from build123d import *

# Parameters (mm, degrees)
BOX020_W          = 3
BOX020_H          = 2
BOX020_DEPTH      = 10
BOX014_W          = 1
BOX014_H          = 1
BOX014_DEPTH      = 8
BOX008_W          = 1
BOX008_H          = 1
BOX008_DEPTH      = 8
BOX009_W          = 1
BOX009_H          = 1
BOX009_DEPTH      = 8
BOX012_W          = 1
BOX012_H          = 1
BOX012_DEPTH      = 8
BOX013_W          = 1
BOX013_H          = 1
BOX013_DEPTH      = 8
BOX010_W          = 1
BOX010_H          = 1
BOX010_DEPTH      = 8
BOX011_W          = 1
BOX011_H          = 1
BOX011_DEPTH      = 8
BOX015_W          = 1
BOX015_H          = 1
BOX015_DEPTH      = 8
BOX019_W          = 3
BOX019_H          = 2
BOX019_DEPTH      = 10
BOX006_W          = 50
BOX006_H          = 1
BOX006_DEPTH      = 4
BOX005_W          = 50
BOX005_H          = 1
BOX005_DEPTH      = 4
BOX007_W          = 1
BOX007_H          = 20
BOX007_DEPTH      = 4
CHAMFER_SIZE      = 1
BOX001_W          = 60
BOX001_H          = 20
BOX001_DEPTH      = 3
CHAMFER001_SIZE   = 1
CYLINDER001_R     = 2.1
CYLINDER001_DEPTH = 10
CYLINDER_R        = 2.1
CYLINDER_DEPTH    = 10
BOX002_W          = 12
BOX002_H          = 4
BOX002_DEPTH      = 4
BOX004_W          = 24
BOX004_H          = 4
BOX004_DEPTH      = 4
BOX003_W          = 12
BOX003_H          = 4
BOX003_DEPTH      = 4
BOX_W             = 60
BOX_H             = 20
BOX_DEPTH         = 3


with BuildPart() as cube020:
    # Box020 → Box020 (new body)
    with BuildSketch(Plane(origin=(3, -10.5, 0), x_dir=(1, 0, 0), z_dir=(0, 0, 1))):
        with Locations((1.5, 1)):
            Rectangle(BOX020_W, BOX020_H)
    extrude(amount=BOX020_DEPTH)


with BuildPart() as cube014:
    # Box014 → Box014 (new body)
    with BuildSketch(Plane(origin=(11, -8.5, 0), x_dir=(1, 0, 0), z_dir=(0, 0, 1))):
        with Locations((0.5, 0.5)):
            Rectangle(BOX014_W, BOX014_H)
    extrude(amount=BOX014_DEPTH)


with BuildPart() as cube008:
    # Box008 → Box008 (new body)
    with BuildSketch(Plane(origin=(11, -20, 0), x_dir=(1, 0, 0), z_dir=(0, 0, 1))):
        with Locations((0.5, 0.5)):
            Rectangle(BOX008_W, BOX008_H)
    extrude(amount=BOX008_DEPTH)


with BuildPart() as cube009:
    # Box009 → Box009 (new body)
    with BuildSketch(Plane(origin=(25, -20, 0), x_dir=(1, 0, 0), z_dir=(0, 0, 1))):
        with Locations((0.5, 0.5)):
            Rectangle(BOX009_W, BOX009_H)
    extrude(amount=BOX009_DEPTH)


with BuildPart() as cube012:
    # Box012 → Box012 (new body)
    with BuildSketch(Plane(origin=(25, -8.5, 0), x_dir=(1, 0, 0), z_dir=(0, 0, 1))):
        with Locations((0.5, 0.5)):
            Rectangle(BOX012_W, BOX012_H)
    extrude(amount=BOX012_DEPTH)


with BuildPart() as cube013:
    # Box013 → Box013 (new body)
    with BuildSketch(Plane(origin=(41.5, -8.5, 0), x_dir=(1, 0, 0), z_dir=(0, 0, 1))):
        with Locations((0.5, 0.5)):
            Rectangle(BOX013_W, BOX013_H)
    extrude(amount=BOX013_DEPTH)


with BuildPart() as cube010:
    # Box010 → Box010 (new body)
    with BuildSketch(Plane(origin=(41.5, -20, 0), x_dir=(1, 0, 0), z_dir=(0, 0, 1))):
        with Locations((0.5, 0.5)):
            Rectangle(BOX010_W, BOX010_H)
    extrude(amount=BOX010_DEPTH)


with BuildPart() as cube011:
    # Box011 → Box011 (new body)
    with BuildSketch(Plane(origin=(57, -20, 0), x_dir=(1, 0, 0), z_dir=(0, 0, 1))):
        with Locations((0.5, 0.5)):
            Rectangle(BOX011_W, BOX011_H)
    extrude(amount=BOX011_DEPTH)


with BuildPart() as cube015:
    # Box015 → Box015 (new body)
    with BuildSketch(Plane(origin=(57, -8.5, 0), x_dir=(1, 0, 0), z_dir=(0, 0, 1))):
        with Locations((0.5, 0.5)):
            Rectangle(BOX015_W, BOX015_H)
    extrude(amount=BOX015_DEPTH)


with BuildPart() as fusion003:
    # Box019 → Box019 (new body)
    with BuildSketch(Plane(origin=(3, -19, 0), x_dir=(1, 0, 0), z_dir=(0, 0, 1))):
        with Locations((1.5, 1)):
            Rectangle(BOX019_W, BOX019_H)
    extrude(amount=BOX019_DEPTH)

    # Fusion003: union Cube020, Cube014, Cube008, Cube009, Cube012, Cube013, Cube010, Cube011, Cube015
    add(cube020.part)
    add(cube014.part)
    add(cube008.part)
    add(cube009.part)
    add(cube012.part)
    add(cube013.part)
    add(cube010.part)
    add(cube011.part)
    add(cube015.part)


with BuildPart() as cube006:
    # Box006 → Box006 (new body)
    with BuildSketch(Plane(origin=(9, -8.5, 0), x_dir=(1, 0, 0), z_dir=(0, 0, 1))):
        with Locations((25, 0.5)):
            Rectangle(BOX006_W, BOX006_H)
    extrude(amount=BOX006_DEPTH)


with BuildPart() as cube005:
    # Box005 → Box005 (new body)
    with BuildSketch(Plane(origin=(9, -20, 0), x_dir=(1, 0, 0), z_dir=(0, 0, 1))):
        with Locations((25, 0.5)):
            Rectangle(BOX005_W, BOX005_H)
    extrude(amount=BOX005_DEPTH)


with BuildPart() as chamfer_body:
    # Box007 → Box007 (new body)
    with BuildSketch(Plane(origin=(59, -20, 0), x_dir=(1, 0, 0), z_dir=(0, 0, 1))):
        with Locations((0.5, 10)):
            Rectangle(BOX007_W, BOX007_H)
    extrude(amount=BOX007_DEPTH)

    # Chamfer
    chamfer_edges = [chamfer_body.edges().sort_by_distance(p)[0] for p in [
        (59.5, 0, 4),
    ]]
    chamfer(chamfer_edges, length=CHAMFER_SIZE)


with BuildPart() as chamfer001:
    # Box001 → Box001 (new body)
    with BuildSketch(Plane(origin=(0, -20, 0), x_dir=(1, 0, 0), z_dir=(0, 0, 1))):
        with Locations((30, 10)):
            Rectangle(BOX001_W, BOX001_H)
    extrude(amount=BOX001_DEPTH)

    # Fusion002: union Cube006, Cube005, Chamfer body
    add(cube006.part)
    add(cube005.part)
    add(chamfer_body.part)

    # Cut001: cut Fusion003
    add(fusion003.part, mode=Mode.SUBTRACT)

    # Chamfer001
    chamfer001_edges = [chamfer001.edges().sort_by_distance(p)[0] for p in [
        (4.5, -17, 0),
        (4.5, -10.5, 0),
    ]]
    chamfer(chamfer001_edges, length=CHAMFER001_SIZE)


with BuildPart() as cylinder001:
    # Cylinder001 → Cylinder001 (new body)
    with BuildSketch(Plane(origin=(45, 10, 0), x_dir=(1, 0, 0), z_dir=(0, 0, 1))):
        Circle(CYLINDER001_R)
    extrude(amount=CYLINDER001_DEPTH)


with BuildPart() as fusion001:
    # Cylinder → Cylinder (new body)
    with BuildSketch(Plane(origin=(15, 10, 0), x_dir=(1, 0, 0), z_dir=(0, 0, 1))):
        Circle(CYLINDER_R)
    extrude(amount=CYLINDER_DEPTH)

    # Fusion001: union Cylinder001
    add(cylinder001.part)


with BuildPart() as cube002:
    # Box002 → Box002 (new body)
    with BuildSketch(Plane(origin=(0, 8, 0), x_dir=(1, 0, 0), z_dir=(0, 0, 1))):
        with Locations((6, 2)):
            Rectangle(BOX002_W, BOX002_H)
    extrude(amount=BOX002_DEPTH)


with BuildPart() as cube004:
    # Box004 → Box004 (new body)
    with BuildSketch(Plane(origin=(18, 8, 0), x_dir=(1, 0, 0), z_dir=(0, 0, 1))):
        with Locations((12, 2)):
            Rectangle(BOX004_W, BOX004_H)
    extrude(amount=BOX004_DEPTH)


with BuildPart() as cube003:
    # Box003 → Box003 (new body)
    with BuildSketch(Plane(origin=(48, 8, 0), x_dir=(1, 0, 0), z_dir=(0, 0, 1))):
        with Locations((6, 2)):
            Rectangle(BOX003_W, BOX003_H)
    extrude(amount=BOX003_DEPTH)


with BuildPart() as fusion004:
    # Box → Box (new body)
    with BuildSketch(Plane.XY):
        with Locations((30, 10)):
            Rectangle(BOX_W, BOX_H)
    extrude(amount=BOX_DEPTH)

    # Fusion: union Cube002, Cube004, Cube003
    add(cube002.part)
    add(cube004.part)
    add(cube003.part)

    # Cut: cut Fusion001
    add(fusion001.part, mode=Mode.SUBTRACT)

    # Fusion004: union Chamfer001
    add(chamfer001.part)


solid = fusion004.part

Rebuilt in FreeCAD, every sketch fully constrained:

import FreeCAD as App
import Part
import Sketcher
from FreeCAD import Vector
Q = App.Units.Quantity


def edges_at(feature, points):
    """Names of the edges that pass closest to the given points."""
    edges = feature.Shape.Edges
    near = lambda p: min(range(len(edges)), key=lambda i: edges[i].distToShape(Part.Vertex(*p))[0])
    return sorted({f"Edge{near(p) + 1}" for p in points})


def add_polygon(sketch, points):
    """Adds a closed chain of lines whose ends are joined by coincident constraints."""
    first, n = sketch.GeometryCount, len(points)
    for a, b in zip(points, points[1:] + points[:1]):
        sketch.addGeometry(Part.LineSegment(App.Vector(*a, 0), App.Vector(*b, 0)), False)
    for i in range(n):
        sketch.addConstraint(Sketcher.Constraint("Coincident", first + i, 2, first + (i + 1) % n, 1))

doc = App.newDocument("Part")
body = doc.addObject("PartDesign::Body", "Body")

sketch1 = doc.addObject("Sketcher::SketchObject", "Sketch")
body.addObject(sketch1)
sketch1.AttachmentSupport = (doc.XY_Plane, [""])
sketch1.MapMode = "FlatFace"
add_polygon(sketch1, [(3, -8.5), (3, -10.5), (6, -10.5), (6, -8.5)])
sketch1.addConstraint([
    Sketcher.Constraint("Vertical", 0),
    Sketcher.Constraint("Horizontal", 1),
    Sketcher.Constraint("Vertical", 2),
    Sketcher.Constraint("Horizontal", 3),
    Sketcher.Constraint("DistanceX", 1, 1, 1, 2, Q("3 mm")),
    Sketcher.Constraint("DistanceY", 0, 2, 0, 1, Q("2 mm")),
    Sketcher.Constraint("DistanceX", -1, 1, 0, 2, Q("3 mm")),
    Sketcher.Constraint("DistanceY", 0, 2, -1, 1, Q("10.5 mm")),
])
pad1 = doc.addObject("PartDesign::Pad", "Pad")
body.addObject(pad1)
pad1.Profile = sketch1
pad1.Length = 10
body2 = doc.addObject("PartDesign::Body", "Body001")

sketch2 = doc.addObject("Sketcher::SketchObject", "Sketch001")
body2.addObject(sketch2)
sketch2.AttachmentSupport = (doc.getObject("XY_Plane001"), [""])
sketch2.MapMode = "FlatFace"
add_polygon(sketch2, [(11, -7.5), (11, -8.5), (12, -8.5), (12, -7.5)])
sketch2.addConstraint([
    Sketcher.Constraint("Vertical", 0),
    Sketcher.Constraint("Horizontal", 1),
    Sketcher.Constraint("Vertical", 2),
    Sketcher.Constraint("Horizontal", 3),
    Sketcher.Constraint("Equal", 3, 0),
    Sketcher.Constraint("DistanceX", 1, 1, 1, 2, Q("1 mm")),
    Sketcher.Constraint("DistanceX", -1, 1, 0, 2, Q("11 mm")),
    Sketcher.Constraint("DistanceY", 0, 2, -1, 1, Q("8.5 mm")),
])
pad2 = doc.addObject("PartDesign::Pad", "Pad001")
body2.addObject(pad2)
pad2.Profile = sketch2
pad2.Length = 8
body3 = doc.addObject("PartDesign::Body", "Body002")

sketch3 = doc.addObject("Sketcher::SketchObject", "Sketch002")
body3.addObject(sketch3)
sketch3.AttachmentSupport = (doc.getObject("XY_Plane002"), [""])
sketch3.MapMode = "FlatFace"
add_polygon(sketch3, [(11, -19), (11, -20), (12, -20), (12, -19)])
sketch3.addConstraint([
    Sketcher.Constraint("Vertical", 0),
    Sketcher.Constraint("Horizontal", 1),
    Sketcher.Constraint("Vertical", 2),
    Sketcher.Constraint("Horizontal", 3),
    Sketcher.Constraint("Equal", 3, 0),
    Sketcher.Constraint("DistanceX", 1, 1, 1, 2, Q("1 mm")),
    Sketcher.Constraint("DistanceX", -1, 1, 0, 2, Q("11 mm")),
    Sketcher.Constraint("DistanceY", 0, 2, -1, 1, Q("20 mm")),
])
pad3 = doc.addObject("PartDesign::Pad", "Pad002")
body3.addObject(pad3)
pad3.Profile = sketch3
pad3.Length = 8
body4 = doc.addObject("PartDesign::Body", "Body003")

sketch4 = doc.addObject("Sketcher::SketchObject", "Sketch003")
body4.addObject(sketch4)
sketch4.AttachmentSupport = (doc.getObject("XY_Plane003"), [""])
sketch4.MapMode = "FlatFace"
add_polygon(sketch4, [(25, -19), (25, -20), (26, -20), (26, -19)])
sketch4.addConstraint([
    Sketcher.Constraint("Vertical", 0),
    Sketcher.Constraint("Horizontal", 1),
    Sketcher.Constraint("Vertical", 2),
    Sketcher.Constraint("Horizontal", 3),
    Sketcher.Constraint("Equal", 3, 0),
    Sketcher.Constraint("DistanceX", 1, 1, 1, 2, Q("1 mm")),
    Sketcher.Constraint("DistanceX", -1, 1, 0, 2, Q("25 mm")),
    Sketcher.Constraint("DistanceY", 0, 2, -1, 1, Q("20 mm")),
])
pad4 = doc.addObject("PartDesign::Pad", "Pad003")
body4.addObject(pad4)
pad4.Profile = sketch4
pad4.Length = 8
body5 = doc.addObject("PartDesign::Body", "Body004")

sketch5 = doc.addObject("Sketcher::SketchObject", "Sketch004")
body5.addObject(sketch5)
sketch5.AttachmentSupport = (doc.getObject("XY_Plane004"), [""])
sketch5.MapMode = "FlatFace"
add_polygon(sketch5, [(25, -7.5), (25, -8.5), (26, -8.5), (26, -7.5)])
sketch5.addConstraint([
    Sketcher.Constraint("Vertical", 0),
    Sketcher.Constraint("Horizontal", 1),
    Sketcher.Constraint("Vertical", 2),
    Sketcher.Constraint("Horizontal", 3),
    Sketcher.Constraint("Equal", 3, 0),
    Sketcher.Constraint("DistanceX", 1, 1, 1, 2, Q("1 mm")),
    Sketcher.Constraint("DistanceX", -1, 1, 0, 2, Q("25 mm")),
    Sketcher.Constraint("DistanceY", 0, 2, -1, 1, Q("8.5 mm")),
])
pad5 = doc.addObject("PartDesign::Pad", "Pad004")
body5.addObject(pad5)
pad5.Profile = sketch5
pad5.Length = 8
body6 = doc.addObject("PartDesign::Body", "Body005")

sketch6 = doc.addObject("Sketcher::SketchObject", "Sketch005")
body6.addObject(sketch6)
sketch6.AttachmentSupport = (doc.getObject("XY_Plane005"), [""])
sketch6.MapMode = "FlatFace"
add_polygon(sketch6, [(41.5, -7.5), (41.5, -8.5), (42.5, -8.5), (42.5, -7.5)])
sketch6.addConstraint([
    Sketcher.Constraint("Vertical", 0),
    Sketcher.Constraint("Horizontal", 1),
    Sketcher.Constraint("Vertical", 2),
    Sketcher.Constraint("Horizontal", 3),
    Sketcher.Constraint("Equal", 3, 0),
    Sketcher.Constraint("DistanceX", 1, 1, 1, 2, Q("1 mm")),
    Sketcher.Constraint("DistanceX", -1, 1, 0, 2, Q("41.5 mm")),
    Sketcher.Constraint("DistanceY", 0, 2, -1, 1, Q("8.5 mm")),
])
pad6 = doc.addObject("PartDesign::Pad", "Pad005")
body6.addObject(pad6)
pad6.Profile = sketch6
pad6.Length = 8
body7 = doc.addObject("PartDesign::Body", "Body006")

sketch7 = doc.addObject("Sketcher::SketchObject", "Sketch006")
body7.addObject(sketch7)
sketch7.AttachmentSupport = (doc.getObject("XY_Plane006"), [""])
sketch7.MapMode = "FlatFace"
add_polygon(sketch7, [(41.5, -19), (41.5, -20), (42.5, -20), (42.5, -19)])
sketch7.addConstraint([
    Sketcher.Constraint("Vertical", 0),
    Sketcher.Constraint("Horizontal", 1),
    Sketcher.Constraint("Vertical", 2),
    Sketcher.Constraint("Horizontal", 3),
    Sketcher.Constraint("Equal", 3, 0),
    Sketcher.Constraint("DistanceX", 1, 1, 1, 2, Q("1 mm")),
    Sketcher.Constraint("DistanceY", 0, 2, -1, 1, Q("20 mm")),
    Sketcher.Constraint("DistanceX", -1, 1, 0, 2, Q("41.5 mm")),
])
pad7 = doc.addObject("PartDesign::Pad", "Pad006")
body7.addObject(pad7)
pad7.Profile = sketch7
pad7.Length = 8
body8 = doc.addObject("PartDesign::Body", "Body007")

sketch8 = doc.addObject("Sketcher::SketchObject", "Sketch007")
body8.addObject(sketch8)
sketch8.AttachmentSupport = (doc.getObject("XY_Plane007"), [""])
sketch8.MapMode = "FlatFace"
add_polygon(sketch8, [(57, -19), (57, -20), (58, -20), (58, -19)])
sketch8.addConstraint([
    Sketcher.Constraint("Vertical", 0),
    Sketcher.Constraint("Horizontal", 1),
    Sketcher.Constraint("Vertical", 2),
    Sketcher.Constraint("Horizontal", 3),
    Sketcher.Constraint("Equal", 3, 0),
    Sketcher.Constraint("DistanceX", 1, 1, 1, 2, Q("1 mm")),
    Sketcher.Constraint("DistanceX", -1, 1, 0, 2, Q("57 mm")),
    Sketcher.Constraint("DistanceY", 0, 2, -1, 1, Q("20 mm")),
])
pad8 = doc.addObject("PartDesign::Pad", "Pad007")
body8.addObject(pad8)
pad8.Profile = sketch8
pad8.Length = 8
body9 = doc.addObject("PartDesign::Body", "Body008")

sketch9 = doc.addObject("Sketcher::SketchObject", "Sketch008")
body9.addObject(sketch9)
sketch9.AttachmentSupport = (doc.getObject("XY_Plane008"), [""])
sketch9.MapMode = "FlatFace"
add_polygon(sketch9, [(57, -7.5), (57, -8.5), (58, -8.5), (58, -7.5)])
sketch9.addConstraint([
    Sketcher.Constraint("Vertical", 0),
    Sketcher.Constraint("Horizontal", 1),
    Sketcher.Constraint("Vertical", 2),
    Sketcher.Constraint("Horizontal", 3),
    Sketcher.Constraint("Equal", 3, 0),
    Sketcher.Constraint("DistanceX", 1, 1, 1, 2, Q("1 mm")),
    Sketcher.Constraint("DistanceX", -1, 1, 0, 2, Q("57 mm")),
    Sketcher.Constraint("DistanceY", 0, 2, -1, 1, Q("8.5 mm")),
])
pad9 = doc.addObject("PartDesign::Pad", "Pad008")
body9.addObject(pad9)
pad9.Profile = sketch9
pad9.Length = 8
body10 = doc.addObject("PartDesign::Body", "Body009")
body10.AllowCompound = True

sketch10 = doc.addObject("Sketcher::SketchObject", "Sketch009")
body10.addObject(sketch10)
sketch10.AttachmentSupport = (doc.getObject("XY_Plane009"), [""])
sketch10.MapMode = "FlatFace"
add_polygon(sketch10, [(3, -17), (3, -19), (6, -19), (6, -17)])
sketch10.addConstraint([
    Sketcher.Constraint("Vertical", 0),
    Sketcher.Constraint("Horizontal", 1),
    Sketcher.Constraint("Vertical", 2),
    Sketcher.Constraint("Horizontal", 3),
    Sketcher.Constraint("DistanceX", 1, 1, 1, 2, Q("3 mm")),
    Sketcher.Constraint("DistanceY", 0, 2, 0, 1, Q("2 mm")),
    Sketcher.Constraint("DistanceX", -1, 1, 0, 2, Q("3 mm")),
    Sketcher.Constraint("DistanceY", 0, 2, -1, 1, Q("19 mm")),
])
pad10 = doc.addObject("PartDesign::Pad", "Pad009")
body10.addObject(pad10)
pad10.Profile = sketch10
pad10.Length = 10
doc.recompute()

boolean = doc.addObject("PartDesign::Boolean", "Boolean")
body10.addObject(boolean)
boolean.Type = "Fuse"
boolean.addObjects([body])
doc.recompute()

boolean2 = doc.addObject("PartDesign::Boolean", "Boolean001")
body10.addObject(boolean2)
boolean2.Type = "Fuse"
boolean2.addObjects([body2])
doc.recompute()

boolean3 = doc.addObject("PartDesign::Boolean", "Boolean002")
body10.addObject(boolean3)
boolean3.Type = "Fuse"
boolean3.addObjects([body3])
doc.recompute()

boolean4 = doc.addObject("PartDesign::Boolean", "Boolean003")
body10.addObject(boolean4)
boolean4.Type = "Fuse"
boolean4.addObjects([body4])
doc.recompute()

boolean5 = doc.addObject("PartDesign::Boolean", "Boolean004")
body10.addObject(boolean5)
boolean5.Type = "Fuse"
boolean5.addObjects([body5])
doc.recompute()

boolean6 = doc.addObject("PartDesign::Boolean", "Boolean005")
body10.addObject(boolean6)
boolean6.Type = "Fuse"
boolean6.addObjects([body6])
doc.recompute()

boolean7 = doc.addObject("PartDesign::Boolean", "Boolean006")
body10.addObject(boolean7)
boolean7.Type = "Fuse"
boolean7.addObjects([body7])
doc.recompute()

boolean8 = doc.addObject("PartDesign::Boolean", "Boolean007")
body10.addObject(boolean8)
boolean8.Type = "Fuse"
boolean8.addObjects([body8])
doc.recompute()

boolean9 = doc.addObject("PartDesign::Boolean", "Boolean008")
body10.addObject(boolean9)
boolean9.Type = "Fuse"
boolean9.addObjects([body9])
body11 = doc.addObject("PartDesign::Body", "Body010")

sketch11 = doc.addObject("Sketcher::SketchObject", "Sketch010")
body11.addObject(sketch11)
sketch11.AttachmentSupport = (doc.getObject("XY_Plane010"), [""])
sketch11.MapMode = "FlatFace"
add_polygon(sketch11, [(9, -7.5), (9, -8.5), (59, -8.5), (59, -7.5)])
sketch11.addConstraint([
    Sketcher.Constraint("Vertical", 0),
    Sketcher.Constraint("Horizontal", 1),
    Sketcher.Constraint("Vertical", 2),
    Sketcher.Constraint("Horizontal", 3),
    Sketcher.Constraint("DistanceX", 1, 1, 1, 2, Q("50 mm")),
    Sketcher.Constraint("DistanceY", 0, 2, 0, 1, Q("1 mm")),
    Sketcher.Constraint("DistanceX", -1, 1, 0, 2, Q("9 mm")),
    Sketcher.Constraint("DistanceY", 0, 2, -1, 1, Q("8.5 mm")),
])
pad11 = doc.addObject("PartDesign::Pad", "Pad010")
body11.addObject(pad11)
pad11.Profile = sketch11
pad11.Length = 4
body12 = doc.addObject("PartDesign::Body", "Body011")

sketch12 = doc.addObject("Sketcher::SketchObject", "Sketch011")
body12.addObject(sketch12)
sketch12.AttachmentSupport = (doc.getObject("XY_Plane011"), [""])
sketch12.MapMode = "FlatFace"
add_polygon(sketch12, [(9, -19), (9, -20), (59, -20), (59, -19)])
sketch12.addConstraint([
    Sketcher.Constraint("Vertical", 0),
    Sketcher.Constraint("Horizontal", 1),
    Sketcher.Constraint("Vertical", 2),
    Sketcher.Constraint("Horizontal", 3),
    Sketcher.Constraint("DistanceX", 1, 1, 1, 2, Q("50 mm")),
    Sketcher.Constraint("DistanceY", 0, 2, 0, 1, Q("1 mm")),
    Sketcher.Constraint("DistanceX", -1, 1, 0, 2, Q("9 mm")),
    Sketcher.Constraint("DistanceY", 0, 2, -1, 1, Q("20 mm")),
])
pad12 = doc.addObject("PartDesign::Pad", "Pad011")
body12.addObject(pad12)
pad12.Profile = sketch12
pad12.Length = 4
body13 = doc.addObject("PartDesign::Body", "Body012")

sketch13 = doc.addObject("Sketcher::SketchObject", "Sketch012")
body13.addObject(sketch13)
sketch13.AttachmentSupport = (doc.getObject("XY_Plane012"), [""])
sketch13.MapMode = "FlatFace"
add_polygon(sketch13, [(59, 0), (59, -20), (60, -20), (60, 0)])
sketch13.addConstraint([
    Sketcher.Constraint("Vertical", 0),
    Sketcher.Constraint("Horizontal", 1),
    Sketcher.Constraint("Vertical", 2),
    Sketcher.Constraint("Horizontal", 3),
    Sketcher.Constraint("PointOnObject", 2, 2, -1),
    Sketcher.Constraint("DistanceX", 1, 1, 1, 2, Q("1 mm")),
    Sketcher.Constraint("DistanceY", 0, 2, 0, 1, Q("20 mm")),
    Sketcher.Constraint("DistanceX", -1, 1, 0, 2, Q("59 mm")),
])
pad13 = doc.addObject("PartDesign::Pad", "Pad012")
body13.addObject(pad13)
pad13.Profile = sketch13
pad13.Length = 4
doc.recompute()

chamfer = doc.addObject("PartDesign::Chamfer", "Chamfer")
body13.addObject(chamfer)
chamfer.Base = (pad13, edges_at(pad13, [(59.5, 0, 4)]))
chamfer.Size = 1
body14 = doc.addObject("PartDesign::Body", "Body013")

sketch14 = doc.addObject("Sketcher::SketchObject", "Sketch013")
body14.addObject(sketch14)
sketch14.AttachmentSupport = (doc.getObject("XY_Plane013"), [""])
sketch14.MapMode = "FlatFace"
add_polygon(sketch14, [(0, 0), (0, -20), (60, -20), (60, 0)])
sketch14.addConstraint([
    Sketcher.Constraint("Vertical", 0),
    Sketcher.Constraint("Horizontal", 1),
    Sketcher.Constraint("Vertical", 2),
    Sketcher.Constraint("Horizontal", 3),
    Sketcher.Constraint("Coincident", 3, 2, -1, 1),
    Sketcher.Constraint("DistanceX", 1, 1, 1, 2, Q("60 mm")),
    Sketcher.Constraint("DistanceY", 0, 2, 0, 1, Q("20 mm")),
])
pad14 = doc.addObject("PartDesign::Pad", "Pad013")
body14.addObject(pad14)
pad14.Profile = sketch14
pad14.Length = 3
doc.recompute()

boolean10 = doc.addObject("PartDesign::Boolean", "Boolean009")
body14.addObject(boolean10)
boolean10.Type = "Fuse"
boolean10.addObjects([body11])
doc.recompute()

boolean11 = doc.addObject("PartDesign::Boolean", "Boolean010")
body14.addObject(boolean11)
boolean11.Type = "Fuse"
boolean11.addObjects([body12])
doc.recompute()

boolean12 = doc.addObject("PartDesign::Boolean", "Boolean011")
body14.addObject(boolean12)
boolean12.Type = "Fuse"
boolean12.addObjects([body13])
doc.recompute()

boolean13 = doc.addObject("PartDesign::Boolean", "Boolean012")
body14.addObject(boolean13)
boolean13.Type = "Cut"
boolean13.addObjects([body10])
doc.recompute()

chamfer2 = doc.addObject("PartDesign::Chamfer", "Chamfer001")
body14.addObject(chamfer2)
chamfer2.Base = (boolean13, edges_at(boolean13, [(4.5, -17, 0), (4.5, -10.5, 0)]))
chamfer2.Size = 1
body15 = doc.addObject("PartDesign::Body", "Body014")

sketch15 = doc.addObject("Sketcher::SketchObject", "Sketch014")
body15.addObject(sketch15)
sketch15.AttachmentSupport = (doc.getObject("XY_Plane014"), [""])
sketch15.MapMode = "FlatFace"
sketch15.addGeometry(Part.Circle(Vector(45, 10, 0), Vector(0, 0, 1), 2.1), False)
sketch15.addConstraint([
    Sketcher.Constraint("Diameter", 0, Q("4.2 mm")),
    Sketcher.Constraint("DistanceX", -1, 1, 0, 3, Q("45 mm")),
    Sketcher.Constraint("DistanceY", -1, 1, 0, 3, Q("10 mm")),
])
pad15 = doc.addObject("PartDesign::Pad", "Pad014")
body15.addObject(pad15)
pad15.Profile = sketch15
pad15.Length = 10
body16 = doc.addObject("PartDesign::Body", "Body015")
body16.AllowCompound = True

sketch16 = doc.addObject("Sketcher::SketchObject", "Sketch015")
body16.addObject(sketch16)
sketch16.AttachmentSupport = (doc.getObject("XY_Plane015"), [""])
sketch16.MapMode = "FlatFace"
sketch16.addGeometry(Part.Circle(Vector(15, 10, 0), Vector(0, 0, 1), 2.1), False)
sketch16.addConstraint([
    Sketcher.Constraint("Diameter", 0, Q("4.2 mm")),
    Sketcher.Constraint("DistanceX", -1, 1, 0, 3, Q("15 mm")),
    Sketcher.Constraint("DistanceY", -1, 1, 0, 3, Q("10 mm")),
])
pad16 = doc.addObject("PartDesign::Pad", "Pad015")
body16.addObject(pad16)
pad16.Profile = sketch16
pad16.Length = 10
doc.recompute()

boolean14 = doc.addObject("PartDesign::Boolean", "Boolean013")
body16.addObject(boolean14)
boolean14.Type = "Fuse"
boolean14.addObjects([body15])
body17 = doc.addObject("PartDesign::Body", "Body016")

sketch17 = doc.addObject("Sketcher::SketchObject", "Sketch016")
body17.addObject(sketch17)
sketch17.AttachmentSupport = (doc.getObject("XY_Plane016"), [""])
sketch17.MapMode = "FlatFace"
add_polygon(sketch17, [(0, 12), (0, 8), (12, 8), (12, 12)])
sketch17.addConstraint([
    Sketcher.Constraint("Vertical", 0),
    Sketcher.Constraint("Horizontal", 1),
    Sketcher.Constraint("Vertical", 2),
    Sketcher.Constraint("Horizontal", 3),
    Sketcher.Constraint("PointOnObject", 0, 2, -2),
    Sketcher.Constraint("DistanceX", 1, 1, 1, 2, Q("12 mm")),
    Sketcher.Constraint("DistanceY", 0, 2, 0, 1, Q("4 mm")),
    Sketcher.Constraint("DistanceY", -1, 1, 0, 2, Q("8 mm")),
])
pad17 = doc.addObject("PartDesign::Pad", "Pad016")
body17.addObject(pad17)
pad17.Profile = sketch17
pad17.Length = 4
body18 = doc.addObject("PartDesign::Body", "Body017")

sketch18 = doc.addObject("Sketcher::SketchObject", "Sketch017")
body18.addObject(sketch18)
sketch18.AttachmentSupport = (doc.getObject("XY_Plane017"), [""])
sketch18.MapMode = "FlatFace"
add_polygon(sketch18, [(18, 12), (18, 8), (42, 8), (42, 12)])
sketch18.addConstraint([
    Sketcher.Constraint("Vertical", 0),
    Sketcher.Constraint("Horizontal", 1),
    Sketcher.Constraint("Vertical", 2),
    Sketcher.Constraint("Horizontal", 3),
    Sketcher.Constraint("DistanceX", 1, 1, 1, 2, Q("24 mm")),
    Sketcher.Constraint("DistanceY", 0, 2, 0, 1, Q("4 mm")),
    Sketcher.Constraint("DistanceX", -1, 1, 0, 2, Q("18 mm")),
    Sketcher.Constraint("DistanceY", -1, 1, 0, 2, Q("8 mm")),
])
pad18 = doc.addObject("PartDesign::Pad", "Pad017")
body18.addObject(pad18)
pad18.Profile = sketch18
pad18.Length = 4
body19 = doc.addObject("PartDesign::Body", "Body018")

sketch19 = doc.addObject("Sketcher::SketchObject", "Sketch018")
body19.addObject(sketch19)
sketch19.AttachmentSupport = (doc.getObject("XY_Plane018"), [""])
sketch19.MapMode = "FlatFace"
add_polygon(sketch19, [(48, 12), (48, 8), (60, 8), (60, 12)])
sketch19.addConstraint([
    Sketcher.Constraint("Vertical", 0),
    Sketcher.Constraint("Horizontal", 1),
    Sketcher.Constraint("Vertical", 2),
    Sketcher.Constraint("Horizontal", 3),
    Sketcher.Constraint("DistanceX", 1, 1, 1, 2, Q("12 mm")),
    Sketcher.Constraint("DistanceY", 0, 2, 0, 1, Q("4 mm")),
    Sketcher.Constraint("DistanceX", -1, 1, 0, 2, Q("48 mm")),
    Sketcher.Constraint("DistanceY", -1, 1, 0, 2, Q("8 mm")),
])
pad19 = doc.addObject("PartDesign::Pad", "Pad018")
body19.addObject(pad19)
pad19.Profile = sketch19
pad19.Length = 4
body20 = doc.addObject("PartDesign::Body", "Body019")

sketch20 = doc.addObject("Sketcher::SketchObject", "Sketch019")
body20.addObject(sketch20)
sketch20.AttachmentSupport = (doc.getObject("XY_Plane019"), [""])
sketch20.MapMode = "FlatFace"
add_polygon(sketch20, [(0, 20), (0, 0), (60, 0), (60, 20)])
sketch20.addConstraint([
    Sketcher.Constraint("Vertical", 0),
    Sketcher.Constraint("Horizontal", 1),
    Sketcher.Constraint("Vertical", 2),
    Sketcher.Constraint("Horizontal", 3),
    Sketcher.Constraint("Coincident", 0, 2, -1, 1),
    Sketcher.Constraint("DistanceX", 1, 1, 1, 2, Q("60 mm")),
    Sketcher.Constraint("DistanceY", 0, 2, 0, 1, Q("20 mm")),
])
pad20 = doc.addObject("PartDesign::Pad", "Pad019")
body20.addObject(pad20)
pad20.Profile = sketch20
pad20.Length = 3
doc.recompute()

boolean15 = doc.addObject("PartDesign::Boolean", "Boolean014")
body20.addObject(boolean15)
boolean15.Type = "Fuse"
boolean15.addObjects([body17])
doc.recompute()

boolean16 = doc.addObject("PartDesign::Boolean", "Boolean015")
body20.addObject(boolean16)
boolean16.Type = "Fuse"
boolean16.addObjects([body18])
doc.recompute()

boolean17 = doc.addObject("PartDesign::Boolean", "Boolean016")
body20.addObject(boolean17)
boolean17.Type = "Fuse"
boolean17.addObjects([body19])
doc.recompute()

boolean18 = doc.addObject("PartDesign::Boolean", "Boolean017")
body20.addObject(boolean18)
boolean18.Type = "Cut"
boolean18.addObjects([body16])
doc.recompute()

boolean19 = doc.addObject("PartDesign::Boolean", "Boolean018")
body20.addObject(boolean19)
boolean19.Type = "Fuse"
boolean19.addObjects([body14])

doc.recompute()
